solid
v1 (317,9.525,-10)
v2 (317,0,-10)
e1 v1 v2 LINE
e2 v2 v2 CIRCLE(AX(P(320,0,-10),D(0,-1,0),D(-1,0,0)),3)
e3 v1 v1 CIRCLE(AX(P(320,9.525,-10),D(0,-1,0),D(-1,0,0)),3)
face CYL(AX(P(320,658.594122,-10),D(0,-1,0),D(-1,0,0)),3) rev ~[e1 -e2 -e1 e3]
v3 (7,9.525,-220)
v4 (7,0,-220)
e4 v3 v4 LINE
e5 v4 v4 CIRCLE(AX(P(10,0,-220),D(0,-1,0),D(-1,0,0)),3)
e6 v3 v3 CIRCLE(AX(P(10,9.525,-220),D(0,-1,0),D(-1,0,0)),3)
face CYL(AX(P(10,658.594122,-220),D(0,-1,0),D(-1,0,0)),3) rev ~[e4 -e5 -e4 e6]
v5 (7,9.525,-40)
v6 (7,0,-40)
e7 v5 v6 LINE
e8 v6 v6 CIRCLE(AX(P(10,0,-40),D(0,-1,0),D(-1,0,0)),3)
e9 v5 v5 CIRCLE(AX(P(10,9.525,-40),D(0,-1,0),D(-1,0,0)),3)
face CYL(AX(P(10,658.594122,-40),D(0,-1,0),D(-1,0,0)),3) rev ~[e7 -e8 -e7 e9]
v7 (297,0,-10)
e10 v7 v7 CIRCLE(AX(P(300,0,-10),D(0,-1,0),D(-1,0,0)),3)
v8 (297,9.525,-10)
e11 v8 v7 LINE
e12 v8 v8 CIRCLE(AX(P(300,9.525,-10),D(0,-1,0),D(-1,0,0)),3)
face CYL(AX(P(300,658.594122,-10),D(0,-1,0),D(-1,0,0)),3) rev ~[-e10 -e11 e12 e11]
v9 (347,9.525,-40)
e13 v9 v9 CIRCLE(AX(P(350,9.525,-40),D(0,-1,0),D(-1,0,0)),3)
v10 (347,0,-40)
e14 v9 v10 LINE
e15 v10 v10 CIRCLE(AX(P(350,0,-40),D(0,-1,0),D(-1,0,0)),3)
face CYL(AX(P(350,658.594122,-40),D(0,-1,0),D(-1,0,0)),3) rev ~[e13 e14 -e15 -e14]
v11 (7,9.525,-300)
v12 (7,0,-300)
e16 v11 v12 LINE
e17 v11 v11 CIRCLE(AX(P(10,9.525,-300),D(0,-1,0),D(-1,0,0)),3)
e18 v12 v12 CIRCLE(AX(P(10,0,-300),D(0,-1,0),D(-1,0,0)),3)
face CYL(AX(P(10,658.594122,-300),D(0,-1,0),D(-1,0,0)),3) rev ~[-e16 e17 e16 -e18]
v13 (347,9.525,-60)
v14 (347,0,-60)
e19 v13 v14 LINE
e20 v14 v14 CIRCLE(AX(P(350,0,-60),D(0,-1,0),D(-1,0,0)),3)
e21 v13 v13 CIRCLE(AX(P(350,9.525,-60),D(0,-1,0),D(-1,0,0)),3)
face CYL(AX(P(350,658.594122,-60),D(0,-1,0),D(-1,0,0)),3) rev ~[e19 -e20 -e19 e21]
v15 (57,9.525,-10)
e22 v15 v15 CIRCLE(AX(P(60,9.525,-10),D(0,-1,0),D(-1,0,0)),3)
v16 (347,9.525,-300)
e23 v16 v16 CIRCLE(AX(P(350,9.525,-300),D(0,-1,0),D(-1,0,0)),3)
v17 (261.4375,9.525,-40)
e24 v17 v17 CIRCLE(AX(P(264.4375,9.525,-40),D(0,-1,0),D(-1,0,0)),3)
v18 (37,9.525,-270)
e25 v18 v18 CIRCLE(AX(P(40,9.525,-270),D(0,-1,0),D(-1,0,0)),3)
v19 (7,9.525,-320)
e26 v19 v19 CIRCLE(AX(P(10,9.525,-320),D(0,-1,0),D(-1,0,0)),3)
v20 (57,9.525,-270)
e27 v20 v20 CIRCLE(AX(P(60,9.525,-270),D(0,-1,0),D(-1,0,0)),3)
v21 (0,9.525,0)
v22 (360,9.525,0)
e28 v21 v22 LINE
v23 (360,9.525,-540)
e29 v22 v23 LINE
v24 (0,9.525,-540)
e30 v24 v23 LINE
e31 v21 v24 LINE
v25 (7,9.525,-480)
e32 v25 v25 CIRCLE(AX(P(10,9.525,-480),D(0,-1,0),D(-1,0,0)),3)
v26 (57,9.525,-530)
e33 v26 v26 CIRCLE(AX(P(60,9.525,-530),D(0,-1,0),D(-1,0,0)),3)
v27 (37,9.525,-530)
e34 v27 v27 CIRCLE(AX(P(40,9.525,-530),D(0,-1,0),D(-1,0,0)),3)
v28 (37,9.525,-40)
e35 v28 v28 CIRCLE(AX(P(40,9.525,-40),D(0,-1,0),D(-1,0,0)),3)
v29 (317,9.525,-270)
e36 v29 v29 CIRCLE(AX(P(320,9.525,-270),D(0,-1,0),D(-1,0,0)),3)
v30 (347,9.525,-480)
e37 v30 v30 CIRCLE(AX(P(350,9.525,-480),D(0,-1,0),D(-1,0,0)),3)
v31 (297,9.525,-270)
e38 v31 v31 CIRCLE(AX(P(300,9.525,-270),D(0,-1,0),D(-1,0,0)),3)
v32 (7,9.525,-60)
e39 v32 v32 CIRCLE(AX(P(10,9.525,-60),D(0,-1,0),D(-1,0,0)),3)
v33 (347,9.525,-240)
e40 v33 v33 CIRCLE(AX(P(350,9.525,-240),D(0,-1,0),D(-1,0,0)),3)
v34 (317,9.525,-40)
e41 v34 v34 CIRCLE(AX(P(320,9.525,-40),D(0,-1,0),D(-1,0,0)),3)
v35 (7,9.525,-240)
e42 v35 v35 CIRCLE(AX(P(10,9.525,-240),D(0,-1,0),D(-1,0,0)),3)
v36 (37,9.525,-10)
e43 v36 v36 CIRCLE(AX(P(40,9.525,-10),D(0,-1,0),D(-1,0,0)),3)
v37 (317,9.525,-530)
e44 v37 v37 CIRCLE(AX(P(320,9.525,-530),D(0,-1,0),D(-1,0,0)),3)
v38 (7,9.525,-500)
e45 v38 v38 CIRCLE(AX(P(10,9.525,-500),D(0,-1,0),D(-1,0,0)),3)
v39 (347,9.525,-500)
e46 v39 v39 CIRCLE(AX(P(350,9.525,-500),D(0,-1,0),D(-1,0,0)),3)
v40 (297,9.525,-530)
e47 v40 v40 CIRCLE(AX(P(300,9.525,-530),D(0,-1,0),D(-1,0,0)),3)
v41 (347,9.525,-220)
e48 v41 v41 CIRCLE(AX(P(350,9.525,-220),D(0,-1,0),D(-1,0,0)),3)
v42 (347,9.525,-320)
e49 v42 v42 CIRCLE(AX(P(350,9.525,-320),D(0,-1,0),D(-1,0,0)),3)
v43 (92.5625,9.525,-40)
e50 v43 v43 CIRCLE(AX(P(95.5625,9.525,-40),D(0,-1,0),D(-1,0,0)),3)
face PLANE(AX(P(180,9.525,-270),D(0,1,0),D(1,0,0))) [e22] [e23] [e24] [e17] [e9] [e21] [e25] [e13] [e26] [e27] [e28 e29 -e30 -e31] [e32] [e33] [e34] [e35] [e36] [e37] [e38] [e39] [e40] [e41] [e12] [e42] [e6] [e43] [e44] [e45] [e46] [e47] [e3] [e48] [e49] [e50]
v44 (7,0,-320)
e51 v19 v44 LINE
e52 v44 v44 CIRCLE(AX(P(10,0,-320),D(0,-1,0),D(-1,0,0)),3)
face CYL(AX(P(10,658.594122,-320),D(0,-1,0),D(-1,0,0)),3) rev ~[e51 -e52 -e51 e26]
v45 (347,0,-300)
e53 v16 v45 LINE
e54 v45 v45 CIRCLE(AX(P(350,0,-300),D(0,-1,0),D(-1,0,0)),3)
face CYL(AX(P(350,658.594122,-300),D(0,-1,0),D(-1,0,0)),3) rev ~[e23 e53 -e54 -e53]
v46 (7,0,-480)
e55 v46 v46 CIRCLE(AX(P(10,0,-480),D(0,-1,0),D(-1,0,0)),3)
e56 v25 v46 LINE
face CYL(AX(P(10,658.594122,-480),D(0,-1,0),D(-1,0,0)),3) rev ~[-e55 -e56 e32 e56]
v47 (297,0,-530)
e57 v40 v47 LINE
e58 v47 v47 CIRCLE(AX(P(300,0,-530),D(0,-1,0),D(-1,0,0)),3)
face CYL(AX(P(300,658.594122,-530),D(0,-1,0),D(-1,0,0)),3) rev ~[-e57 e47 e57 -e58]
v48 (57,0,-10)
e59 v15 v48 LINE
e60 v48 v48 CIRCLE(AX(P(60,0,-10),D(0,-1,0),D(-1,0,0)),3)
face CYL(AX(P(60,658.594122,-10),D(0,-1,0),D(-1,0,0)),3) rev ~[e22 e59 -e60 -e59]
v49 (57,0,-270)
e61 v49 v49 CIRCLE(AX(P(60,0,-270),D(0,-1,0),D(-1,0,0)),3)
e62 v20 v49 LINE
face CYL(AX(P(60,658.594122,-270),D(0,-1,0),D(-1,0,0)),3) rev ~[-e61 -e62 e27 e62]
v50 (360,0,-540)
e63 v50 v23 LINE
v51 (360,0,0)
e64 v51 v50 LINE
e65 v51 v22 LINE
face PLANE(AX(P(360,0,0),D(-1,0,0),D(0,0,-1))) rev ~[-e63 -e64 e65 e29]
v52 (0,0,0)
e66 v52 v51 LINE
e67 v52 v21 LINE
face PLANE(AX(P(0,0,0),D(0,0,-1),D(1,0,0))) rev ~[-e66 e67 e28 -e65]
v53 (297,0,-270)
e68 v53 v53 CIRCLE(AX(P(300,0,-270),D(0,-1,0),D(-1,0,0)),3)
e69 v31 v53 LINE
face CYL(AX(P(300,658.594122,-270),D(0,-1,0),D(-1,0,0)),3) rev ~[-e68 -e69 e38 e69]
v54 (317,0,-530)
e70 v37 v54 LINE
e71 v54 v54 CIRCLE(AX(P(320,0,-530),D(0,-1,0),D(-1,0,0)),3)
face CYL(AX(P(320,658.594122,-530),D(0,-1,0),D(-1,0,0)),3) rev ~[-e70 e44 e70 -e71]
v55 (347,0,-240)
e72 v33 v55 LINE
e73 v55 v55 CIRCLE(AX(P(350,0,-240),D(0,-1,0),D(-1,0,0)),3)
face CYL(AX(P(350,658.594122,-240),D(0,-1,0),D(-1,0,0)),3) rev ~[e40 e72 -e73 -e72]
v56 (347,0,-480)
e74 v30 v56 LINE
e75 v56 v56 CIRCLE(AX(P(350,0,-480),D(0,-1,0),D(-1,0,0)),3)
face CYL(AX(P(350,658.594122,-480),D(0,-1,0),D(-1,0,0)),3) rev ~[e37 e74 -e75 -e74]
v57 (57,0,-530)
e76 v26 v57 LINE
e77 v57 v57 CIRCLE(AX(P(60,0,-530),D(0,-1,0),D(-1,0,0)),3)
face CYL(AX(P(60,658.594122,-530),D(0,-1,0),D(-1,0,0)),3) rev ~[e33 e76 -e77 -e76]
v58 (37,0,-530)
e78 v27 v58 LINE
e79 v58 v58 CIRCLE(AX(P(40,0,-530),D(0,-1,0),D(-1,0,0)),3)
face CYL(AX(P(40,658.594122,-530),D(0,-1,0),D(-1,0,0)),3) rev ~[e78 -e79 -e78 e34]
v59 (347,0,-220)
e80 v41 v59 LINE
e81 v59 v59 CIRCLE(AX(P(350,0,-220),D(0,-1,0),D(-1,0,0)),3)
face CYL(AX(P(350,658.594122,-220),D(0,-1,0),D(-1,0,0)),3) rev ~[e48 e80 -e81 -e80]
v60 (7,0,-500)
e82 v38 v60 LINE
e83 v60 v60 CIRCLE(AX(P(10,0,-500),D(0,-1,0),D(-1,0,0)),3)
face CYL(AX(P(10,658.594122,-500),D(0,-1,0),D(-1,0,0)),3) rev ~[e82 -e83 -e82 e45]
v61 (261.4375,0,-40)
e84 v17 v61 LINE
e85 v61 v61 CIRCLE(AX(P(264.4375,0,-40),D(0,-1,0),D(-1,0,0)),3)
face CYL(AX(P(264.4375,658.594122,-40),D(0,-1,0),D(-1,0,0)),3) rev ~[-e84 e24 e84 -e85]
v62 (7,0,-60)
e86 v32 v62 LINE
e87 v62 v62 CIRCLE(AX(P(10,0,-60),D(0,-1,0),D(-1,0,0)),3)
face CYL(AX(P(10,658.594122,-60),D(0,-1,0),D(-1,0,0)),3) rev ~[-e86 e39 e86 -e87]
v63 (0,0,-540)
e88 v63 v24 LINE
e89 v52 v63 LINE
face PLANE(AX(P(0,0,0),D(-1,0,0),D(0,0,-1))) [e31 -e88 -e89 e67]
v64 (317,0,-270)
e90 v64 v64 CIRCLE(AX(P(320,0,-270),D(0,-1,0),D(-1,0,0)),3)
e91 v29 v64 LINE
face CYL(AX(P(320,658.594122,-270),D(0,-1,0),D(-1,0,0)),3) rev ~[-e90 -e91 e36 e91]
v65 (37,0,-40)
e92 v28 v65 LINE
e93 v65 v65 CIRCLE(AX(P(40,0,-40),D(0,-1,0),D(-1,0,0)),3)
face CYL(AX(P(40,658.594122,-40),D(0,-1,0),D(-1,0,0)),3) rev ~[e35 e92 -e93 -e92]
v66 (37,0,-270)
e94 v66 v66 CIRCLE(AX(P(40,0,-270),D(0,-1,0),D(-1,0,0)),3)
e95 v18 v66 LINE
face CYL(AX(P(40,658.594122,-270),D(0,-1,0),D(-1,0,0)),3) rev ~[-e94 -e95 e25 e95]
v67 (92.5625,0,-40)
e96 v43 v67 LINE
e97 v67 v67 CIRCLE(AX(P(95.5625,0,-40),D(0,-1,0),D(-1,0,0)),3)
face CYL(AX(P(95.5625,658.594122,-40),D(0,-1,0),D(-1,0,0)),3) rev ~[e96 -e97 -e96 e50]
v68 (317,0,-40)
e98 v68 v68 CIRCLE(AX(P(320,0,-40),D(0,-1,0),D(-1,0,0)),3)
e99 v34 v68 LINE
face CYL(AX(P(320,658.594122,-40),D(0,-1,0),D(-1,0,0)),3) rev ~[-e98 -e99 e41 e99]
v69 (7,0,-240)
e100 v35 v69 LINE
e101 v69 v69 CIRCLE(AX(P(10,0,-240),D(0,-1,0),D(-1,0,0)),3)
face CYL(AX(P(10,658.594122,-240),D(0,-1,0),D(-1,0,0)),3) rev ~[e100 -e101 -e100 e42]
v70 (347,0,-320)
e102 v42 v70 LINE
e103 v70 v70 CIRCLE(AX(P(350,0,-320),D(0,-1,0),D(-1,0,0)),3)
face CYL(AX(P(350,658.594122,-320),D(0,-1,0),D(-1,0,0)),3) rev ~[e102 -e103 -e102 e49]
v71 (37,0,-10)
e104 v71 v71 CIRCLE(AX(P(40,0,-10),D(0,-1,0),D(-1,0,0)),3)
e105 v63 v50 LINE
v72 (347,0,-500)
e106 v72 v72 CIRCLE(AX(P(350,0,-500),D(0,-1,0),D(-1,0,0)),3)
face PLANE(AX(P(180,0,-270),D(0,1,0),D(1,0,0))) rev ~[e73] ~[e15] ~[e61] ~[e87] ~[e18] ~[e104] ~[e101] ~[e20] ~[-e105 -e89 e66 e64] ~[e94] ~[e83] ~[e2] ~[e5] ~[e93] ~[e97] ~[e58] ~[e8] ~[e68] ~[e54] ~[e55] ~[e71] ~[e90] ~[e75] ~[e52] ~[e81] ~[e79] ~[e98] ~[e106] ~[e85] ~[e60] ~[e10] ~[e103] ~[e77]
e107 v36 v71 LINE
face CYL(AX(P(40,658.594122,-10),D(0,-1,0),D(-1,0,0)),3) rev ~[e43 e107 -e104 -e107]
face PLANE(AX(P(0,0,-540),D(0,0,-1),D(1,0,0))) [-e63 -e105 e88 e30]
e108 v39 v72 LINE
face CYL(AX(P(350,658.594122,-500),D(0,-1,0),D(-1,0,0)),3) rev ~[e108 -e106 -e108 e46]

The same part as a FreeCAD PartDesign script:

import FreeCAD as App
import Part
import Sketcher
from FreeCAD import Vector


def add_polygon(sketch, points):
    """Adds a closed chain of lines whose ends are joined by coincident constraints."""
    first, n = sketch.GeometryCount, len(points)
    for a, b in zip(points, points[1:] + points[:1]):
        sketch.addGeometry(Part.LineSegment(App.Vector(*a, 0), App.Vector(*b, 0)), False)
    for i in range(n):
        sketch.addConstraint(Sketcher.Constraint("Coincident", first + i, 2, first + (i + 1) % n, 1))

doc = App.newDocument("Part")
body = doc.addObject("PartDesign::Body", "Body")

# Sketch on XZ plane
sketch1 = body.newObject("Sketcher::SketchObject", "Sketch")
sketch1.AttachmentSupport = (doc.getObject("XZ_Plane"), [""])
sketch1.MapMode = "FlatFace"
add_polygon(sketch1, [(0, -540), (0, 0), (360, 0), (360, -540)])  # lines 0-3
sketch1.addConstraint([
    Sketcher.Constraint("Vertical", 0),
    Sketcher.Constraint("Horizontal", 1),
    Sketcher.Constraint("Vertical", 2),
    Sketcher.Constraint("Horizontal", 3),
    Sketcher.Constraint("Coincident", 0, 2, -1, 1),
    Sketcher.Constraint("DistanceX", 1, 1, 1, 2, 360.0),
    Sketcher.Constraint("DistanceY", 0, 1, 0, 2, 540.0),
])
pad1 = body.newObject("PartDesign::Pad", "Pad")
pad1.Profile = sketch1
pad1.Length = 9.525
pad1.Reversed = True

# Sketch on XZ plane
sketch2 = body.newObject("Sketcher::SketchObject", "Sketch001")
sketch2.AttachmentSupport = (doc.getObject("XZ_Plane"), [""])
sketch2.MapMode = "FlatFace"
sketch2.AttachmentOffset = App.Placement(Vector(0, 0, -9.525), App.Rotation())
sketch2.addGeometry([
    Part.Circle(Vector(40, -40, 0), Vector(0, 0, 1), 3),
    Part.Circle(Vector(95.5625, -40, 0), Vector(0, 0, 1), 3),
    Part.Circle(Vector(264.4375, -40, 0), Vector(0, 0, 1), 3),
    Part.Circle(Vector(320, -40, 0), Vector(0, 0, 1), 3),
], False)
sketch2.addConstraint([
    Sketcher.Constraint("Equal", 0, 1),
    Sketcher.Constraint("Equal", 1, 2),
    Sketcher.Constraint("Equal", 2, 3),
    Sketcher.Constraint("Horizontal", 0, 3, 1, 3),
    Sketcher.Constraint("Horizontal", 1, 3, 2, 3),
    Sketcher.Constraint("Horizontal", 2, 3, 3, 3),
    Sketcher.Constraint("Diameter", 0, 6.0),
    Sketcher.Constraint("DistanceX", -1, 1, 0, 3, 40.0),
    Sketcher.Constraint("DistanceY", 0, 3, -1, 1, 40.0),
    Sketcher.Constraint("DistanceX", -1, 1, 3, 3, 320.0),
    Sketcher.Constraint("DistanceX", 1, 3, 2, 3, 168.875),
    Sketcher.Constraint("DistanceX", -1, 1, 1, 3, 95.5625),
])
doc.recompute()
hole = body.newObject("PartDesign::Hole", "Hole")
hole.Profile = sketch2
hole.ThreadType = "None"
hole.Diameter = 6
hole.DepthType = "ThroughAll"
hole.Reversed = True

# Sketch on XZ plane
sketch3 = body.newObject("Sketcher::SketchObject", "Sketch002")
sketch3.AttachmentSupport = (doc.getObject("XZ_Plane"), [""])
sketch3.MapMode = "FlatFace"
sketch3.AttachmentOffset = App.Placement(Vector(0, 0, -9.525), App.Rotation())
sketch3.addGeometry([
    Part.Circle(Vector(40, -10, 0), Vector(0, 0, 1), 3),  # 0
    Part.Circle(Vector(10, -40, 0), Vector(0, 0, 1), 3),  # 1
    Part.Circle(Vector(320, -10, 0), Vector(0, 0, 1), 3),  # 2
    Part.Circle(Vector(350, -40, 0), Vector(0, 0, 1), 3),  # 3
    Part.Circle(Vector(10, -240, 0), Vector(0, 0, 1), 3),  # 4
    Part.Circle(Vector(40, -270, 0), Vector(0, 0, 1), 3),  # 5
    Part.Circle(Vector(10, -300, 0), Vector(0, 0, 1), 3),  # 6
    Part.Circle(Vector(350, -240, 0), Vector(0, 0, 1), 3),  # 7
    Part.Circle(Vector(320, -270, 0), Vector(0, 0, 1), 3),  # 8
    Part.Circle(Vector(350, -300, 0), Vector(0, 0, 1), 3),  # 9
    Part.Circle(Vector(10, -500, 0), Vector(0, 0, 1), 3),  # 10
    Part.Circle(Vector(40, -530, 0), Vector(0, 0, 1), 3),  # 11
    Part.Circle(Vector(320, -530, 0), Vector(0, 0, 1), 3),  # 12
    Part.Circle(Vector(350, -500, 0), Vector(0, 0, 1), 3),  # 13
    Part.Circle(Vector(10, -480, 0), Vector(0, 0, 1), 3),  # 14
    Part.Circle(Vector(60, -530, 0), Vector(0, 0, 1), 3),  # 15
    Part.Circle(Vector(300, -530, 0), Vector(0, 0, 1), 3),  # 16
    Part.Circle(Vector(350, -480, 0), Vector(0, 0, 1), 3),  # 17
    Part.Circle(Vector(350, -320, 0), Vector(0, 0, 1), 3),  # 18
    Part.Circle(Vector(300, -270, 0), Vector(0, 0, 1), 3),  # 19
    Part.Circle(Vector(350, -220, 0), Vector(0, 0, 1), 3),  # 20
    Part.Circle(Vector(10, -220, 0), Vector(0, 0, 1), 3),  # 21
    Part.Circle(Vector(60, -270, 0), Vector(0, 0, 1), 3),  # 22
    Part.Circle(Vector(10, -320, 0), Vector(0, 0, 1), 3),  # 23
    Part.Circle(Vector(10, -60, 0), Vector(0, 0, 1), 3),  # 24
    Part.Circle(Vector(60, -10, 0), Vector(0, 0, 1), 3),  # 25
    Part.Circle(Vector(300, -10, 0), Vector(0, 0, 1), 3),  # 26
    Part.Circle(Vector(350, -60, 0), Vector(0, 0, 1), 3),  # 27
], False)
sketch3.addConstraint([
    Sketcher.Constraint("Equal", 0, 1),
    Sketcher.Constraint("Equal", 1, 2),
    Sketcher.Constraint("Equal", 2, 3),
    Sketcher.Constraint("Equal", 3, 4),
    Sketcher.Constraint("Equal", 4, 5),
    Sketcher.Constraint("Equal", 5, 6),
    Sketcher.Constraint("Equal", 6, 7),
    Sketcher.Constraint("Equal", 7, 8),
    Sketcher.Constraint("Equal", 8, 9),
    Sketcher.Constraint("Equal", 9, 10),
    Sketcher.Constraint("Equal", 10, 11),
    Sketcher.Constraint("Equal", 11, 12),
    Sketcher.Constraint("Equal", 12, 13),
    Sketcher.Constraint("Equal", 13, 14),
    Sketcher.Constraint("Equal", 14, 15),
    Sketcher.Constraint("Equal", 15, 16),
    Sketcher.Constraint("Equal", 16, 17),
    Sketcher.Constraint("Equal", 17, 18),
    Sketcher.Constraint("Equal", 18, 19),
    Sketcher.Constraint("Equal", 19, 20),
    Sketcher.Constraint("Equal", 20, 21),
    Sketcher.Constraint("Equal", 21, 22),
    Sketcher.Constraint("Equal", 22, 23),
    Sketcher.Constraint("Equal", 23, 24),
    Sketcher.Constraint("Equal", 24, 25),
    Sketcher.Constraint("Equal", 25, 26),
    Sketcher.Constraint("Equal", 26, 27),
    Sketcher.Constraint("Horizontal", 0, 3, 2, 3),
    Sketcher.Constraint("Horizontal", 1, 3, 3, 3),
    Sketcher.Constraint("Horizontal", 4, 3, 7, 3),
    Sketcher.Constraint("Horizontal", 5, 3, 8, 3),
    Sketcher.Constraint("Horizontal", 6, 3, 9, 3),
    Sketcher.Constraint("Horizontal", 11, 3, 12, 3),
    Sketcher.Constraint("Horizontal", 10, 3, 13, 3),
    Sketcher.Constraint("Horizontal", 12, 3, 15, 3),
    Sketcher.Constraint("Horizontal", 15, 3, 16, 3),
    Sketcher.Constraint("Horizontal", 14, 3, 17, 3),
    Sketcher.Constraint("Horizontal", 8, 3, 19, 3),
    Sketcher.Constraint("Horizontal", 20, 3, 21, 3),
    Sketcher.Constraint("Horizontal", 19, 3, 22, 3),
    Sketcher.Constraint("Horizontal", 18, 3, 23, 3),
    Sketcher.Constraint("Horizontal", 2, 3, 25, 3),
    Sketcher.Constraint("Horizontal", 25, 3, 26, 3),
    Sketcher.Constraint("Horizontal", 24, 3, 27, 3),
    Sketcher.Constraint("Vertical", 1, 3, 4, 3),
    Sketcher.Constraint("Vertical", 0, 3, 5, 3),
    Sketcher.Constraint("Vertical", 4, 3, 6, 3),
    Sketcher.Constraint("Vertical", 3, 3, 7, 3),
    Sketcher.Constraint("Vertical", 2, 3, 8, 3),
    Sketcher.Constraint("Vertical", 7, 3, 9, 3),
    Sketcher.Constraint("Vertical", 6, 3, 10, 3),
    Sketcher.Constraint("Vertical", 5, 3, 11, 3),
    Sketcher.Constraint("Vertical", 8, 3, 12, 3),
    Sketcher.Constraint("Vertical", 9, 3, 13, 3),
    Sketcher.Constraint("Vertical", 10, 3, 14, 3),
    Sketcher.Constraint("Vertical", 13, 3, 17, 3),
    Sketcher.Constraint("Vertical", 17, 3, 18, 3),
    Sketcher.Constraint("Vertical", 16, 3, 19, 3),
    Sketcher.Constraint("Vertical", 18, 3, 20, 3),
    Sketcher.Constraint("Vertical", 14, 3, 21, 3),
    Sketcher.Constraint("Vertical", 15, 3, 22, 3),
    Sketcher.Constraint("Vertical", 21, 3, 23, 3),
    Sketcher.Constraint("Vertical", 23, 3, 24, 3),
    Sketcher.Constraint("Vertical", 22, 3, 25, 3),
    Sketcher.Constraint("Vertical", 19, 3, 26, 3),
    Sketcher.Constraint("Vertical", 20, 3, 27, 3),
    Sketcher.Constraint("Diameter", 0, 6.0),
    Sketcher.Constraint("DistanceX", -1, 1, 0, 3, 40.0),
    Sketcher.Constraint("DistanceY", 0, 3, -1, 1, 10.0),
    Sketcher.Constraint("DistanceX", -1, 1, 1, 3, 10.0),
    Sketcher.Constraint("DistanceY", 1, 3, -1, 1, 40.0),
    Sketcher.Constraint("DistanceX", -1, 1, 2, 3, 320.0),
    Sketcher.Constraint("DistanceX", -1, 1, 3, 3, 350.0),
    Sketcher.Constraint("DistanceY", 4, 3, -1, 1, 240.0),
    Sketcher.Constraint("DistanceY", 5, 3, -1, 1, 270.0),
    Sketcher.Constraint("DistanceY", 6, 3, -1, 1, 300.0),
    Sketcher.Constraint("DistanceY", 10, 3, -1, 1, 500.0),
    Sketcher.Constraint("DistanceY", 11, 3, -1, 1, 530.0),
    Sketcher.Constraint("DistanceY", 14, 3, -1, 1, 480.0),
    Sketcher.Constraint("DistanceX", -1, 1, 15, 3, 60.0),
    Sketcher.Constraint("DistanceX", -1, 1, 16, 3, 300.0),
    Sketcher.Constraint("DistanceY", 18, 3, -1, 1, 320.0),
    Sketcher.Constraint("DistanceY", 20, 3, -1, 1, 220.0),
    Sketcher.Constraint("DistanceY", 24, 3, -1, 1, 60.0),
])
doc.recompute()
hole2 = body.newObject("PartDesign::Hole", "Hole001")
hole2.Profile = sketch3
hole2.ThreadType = "None"
hole2.Diameter = 6
hole2.DepthType = "ThroughAll"
hole2.Reversed = True

doc.recompute()
